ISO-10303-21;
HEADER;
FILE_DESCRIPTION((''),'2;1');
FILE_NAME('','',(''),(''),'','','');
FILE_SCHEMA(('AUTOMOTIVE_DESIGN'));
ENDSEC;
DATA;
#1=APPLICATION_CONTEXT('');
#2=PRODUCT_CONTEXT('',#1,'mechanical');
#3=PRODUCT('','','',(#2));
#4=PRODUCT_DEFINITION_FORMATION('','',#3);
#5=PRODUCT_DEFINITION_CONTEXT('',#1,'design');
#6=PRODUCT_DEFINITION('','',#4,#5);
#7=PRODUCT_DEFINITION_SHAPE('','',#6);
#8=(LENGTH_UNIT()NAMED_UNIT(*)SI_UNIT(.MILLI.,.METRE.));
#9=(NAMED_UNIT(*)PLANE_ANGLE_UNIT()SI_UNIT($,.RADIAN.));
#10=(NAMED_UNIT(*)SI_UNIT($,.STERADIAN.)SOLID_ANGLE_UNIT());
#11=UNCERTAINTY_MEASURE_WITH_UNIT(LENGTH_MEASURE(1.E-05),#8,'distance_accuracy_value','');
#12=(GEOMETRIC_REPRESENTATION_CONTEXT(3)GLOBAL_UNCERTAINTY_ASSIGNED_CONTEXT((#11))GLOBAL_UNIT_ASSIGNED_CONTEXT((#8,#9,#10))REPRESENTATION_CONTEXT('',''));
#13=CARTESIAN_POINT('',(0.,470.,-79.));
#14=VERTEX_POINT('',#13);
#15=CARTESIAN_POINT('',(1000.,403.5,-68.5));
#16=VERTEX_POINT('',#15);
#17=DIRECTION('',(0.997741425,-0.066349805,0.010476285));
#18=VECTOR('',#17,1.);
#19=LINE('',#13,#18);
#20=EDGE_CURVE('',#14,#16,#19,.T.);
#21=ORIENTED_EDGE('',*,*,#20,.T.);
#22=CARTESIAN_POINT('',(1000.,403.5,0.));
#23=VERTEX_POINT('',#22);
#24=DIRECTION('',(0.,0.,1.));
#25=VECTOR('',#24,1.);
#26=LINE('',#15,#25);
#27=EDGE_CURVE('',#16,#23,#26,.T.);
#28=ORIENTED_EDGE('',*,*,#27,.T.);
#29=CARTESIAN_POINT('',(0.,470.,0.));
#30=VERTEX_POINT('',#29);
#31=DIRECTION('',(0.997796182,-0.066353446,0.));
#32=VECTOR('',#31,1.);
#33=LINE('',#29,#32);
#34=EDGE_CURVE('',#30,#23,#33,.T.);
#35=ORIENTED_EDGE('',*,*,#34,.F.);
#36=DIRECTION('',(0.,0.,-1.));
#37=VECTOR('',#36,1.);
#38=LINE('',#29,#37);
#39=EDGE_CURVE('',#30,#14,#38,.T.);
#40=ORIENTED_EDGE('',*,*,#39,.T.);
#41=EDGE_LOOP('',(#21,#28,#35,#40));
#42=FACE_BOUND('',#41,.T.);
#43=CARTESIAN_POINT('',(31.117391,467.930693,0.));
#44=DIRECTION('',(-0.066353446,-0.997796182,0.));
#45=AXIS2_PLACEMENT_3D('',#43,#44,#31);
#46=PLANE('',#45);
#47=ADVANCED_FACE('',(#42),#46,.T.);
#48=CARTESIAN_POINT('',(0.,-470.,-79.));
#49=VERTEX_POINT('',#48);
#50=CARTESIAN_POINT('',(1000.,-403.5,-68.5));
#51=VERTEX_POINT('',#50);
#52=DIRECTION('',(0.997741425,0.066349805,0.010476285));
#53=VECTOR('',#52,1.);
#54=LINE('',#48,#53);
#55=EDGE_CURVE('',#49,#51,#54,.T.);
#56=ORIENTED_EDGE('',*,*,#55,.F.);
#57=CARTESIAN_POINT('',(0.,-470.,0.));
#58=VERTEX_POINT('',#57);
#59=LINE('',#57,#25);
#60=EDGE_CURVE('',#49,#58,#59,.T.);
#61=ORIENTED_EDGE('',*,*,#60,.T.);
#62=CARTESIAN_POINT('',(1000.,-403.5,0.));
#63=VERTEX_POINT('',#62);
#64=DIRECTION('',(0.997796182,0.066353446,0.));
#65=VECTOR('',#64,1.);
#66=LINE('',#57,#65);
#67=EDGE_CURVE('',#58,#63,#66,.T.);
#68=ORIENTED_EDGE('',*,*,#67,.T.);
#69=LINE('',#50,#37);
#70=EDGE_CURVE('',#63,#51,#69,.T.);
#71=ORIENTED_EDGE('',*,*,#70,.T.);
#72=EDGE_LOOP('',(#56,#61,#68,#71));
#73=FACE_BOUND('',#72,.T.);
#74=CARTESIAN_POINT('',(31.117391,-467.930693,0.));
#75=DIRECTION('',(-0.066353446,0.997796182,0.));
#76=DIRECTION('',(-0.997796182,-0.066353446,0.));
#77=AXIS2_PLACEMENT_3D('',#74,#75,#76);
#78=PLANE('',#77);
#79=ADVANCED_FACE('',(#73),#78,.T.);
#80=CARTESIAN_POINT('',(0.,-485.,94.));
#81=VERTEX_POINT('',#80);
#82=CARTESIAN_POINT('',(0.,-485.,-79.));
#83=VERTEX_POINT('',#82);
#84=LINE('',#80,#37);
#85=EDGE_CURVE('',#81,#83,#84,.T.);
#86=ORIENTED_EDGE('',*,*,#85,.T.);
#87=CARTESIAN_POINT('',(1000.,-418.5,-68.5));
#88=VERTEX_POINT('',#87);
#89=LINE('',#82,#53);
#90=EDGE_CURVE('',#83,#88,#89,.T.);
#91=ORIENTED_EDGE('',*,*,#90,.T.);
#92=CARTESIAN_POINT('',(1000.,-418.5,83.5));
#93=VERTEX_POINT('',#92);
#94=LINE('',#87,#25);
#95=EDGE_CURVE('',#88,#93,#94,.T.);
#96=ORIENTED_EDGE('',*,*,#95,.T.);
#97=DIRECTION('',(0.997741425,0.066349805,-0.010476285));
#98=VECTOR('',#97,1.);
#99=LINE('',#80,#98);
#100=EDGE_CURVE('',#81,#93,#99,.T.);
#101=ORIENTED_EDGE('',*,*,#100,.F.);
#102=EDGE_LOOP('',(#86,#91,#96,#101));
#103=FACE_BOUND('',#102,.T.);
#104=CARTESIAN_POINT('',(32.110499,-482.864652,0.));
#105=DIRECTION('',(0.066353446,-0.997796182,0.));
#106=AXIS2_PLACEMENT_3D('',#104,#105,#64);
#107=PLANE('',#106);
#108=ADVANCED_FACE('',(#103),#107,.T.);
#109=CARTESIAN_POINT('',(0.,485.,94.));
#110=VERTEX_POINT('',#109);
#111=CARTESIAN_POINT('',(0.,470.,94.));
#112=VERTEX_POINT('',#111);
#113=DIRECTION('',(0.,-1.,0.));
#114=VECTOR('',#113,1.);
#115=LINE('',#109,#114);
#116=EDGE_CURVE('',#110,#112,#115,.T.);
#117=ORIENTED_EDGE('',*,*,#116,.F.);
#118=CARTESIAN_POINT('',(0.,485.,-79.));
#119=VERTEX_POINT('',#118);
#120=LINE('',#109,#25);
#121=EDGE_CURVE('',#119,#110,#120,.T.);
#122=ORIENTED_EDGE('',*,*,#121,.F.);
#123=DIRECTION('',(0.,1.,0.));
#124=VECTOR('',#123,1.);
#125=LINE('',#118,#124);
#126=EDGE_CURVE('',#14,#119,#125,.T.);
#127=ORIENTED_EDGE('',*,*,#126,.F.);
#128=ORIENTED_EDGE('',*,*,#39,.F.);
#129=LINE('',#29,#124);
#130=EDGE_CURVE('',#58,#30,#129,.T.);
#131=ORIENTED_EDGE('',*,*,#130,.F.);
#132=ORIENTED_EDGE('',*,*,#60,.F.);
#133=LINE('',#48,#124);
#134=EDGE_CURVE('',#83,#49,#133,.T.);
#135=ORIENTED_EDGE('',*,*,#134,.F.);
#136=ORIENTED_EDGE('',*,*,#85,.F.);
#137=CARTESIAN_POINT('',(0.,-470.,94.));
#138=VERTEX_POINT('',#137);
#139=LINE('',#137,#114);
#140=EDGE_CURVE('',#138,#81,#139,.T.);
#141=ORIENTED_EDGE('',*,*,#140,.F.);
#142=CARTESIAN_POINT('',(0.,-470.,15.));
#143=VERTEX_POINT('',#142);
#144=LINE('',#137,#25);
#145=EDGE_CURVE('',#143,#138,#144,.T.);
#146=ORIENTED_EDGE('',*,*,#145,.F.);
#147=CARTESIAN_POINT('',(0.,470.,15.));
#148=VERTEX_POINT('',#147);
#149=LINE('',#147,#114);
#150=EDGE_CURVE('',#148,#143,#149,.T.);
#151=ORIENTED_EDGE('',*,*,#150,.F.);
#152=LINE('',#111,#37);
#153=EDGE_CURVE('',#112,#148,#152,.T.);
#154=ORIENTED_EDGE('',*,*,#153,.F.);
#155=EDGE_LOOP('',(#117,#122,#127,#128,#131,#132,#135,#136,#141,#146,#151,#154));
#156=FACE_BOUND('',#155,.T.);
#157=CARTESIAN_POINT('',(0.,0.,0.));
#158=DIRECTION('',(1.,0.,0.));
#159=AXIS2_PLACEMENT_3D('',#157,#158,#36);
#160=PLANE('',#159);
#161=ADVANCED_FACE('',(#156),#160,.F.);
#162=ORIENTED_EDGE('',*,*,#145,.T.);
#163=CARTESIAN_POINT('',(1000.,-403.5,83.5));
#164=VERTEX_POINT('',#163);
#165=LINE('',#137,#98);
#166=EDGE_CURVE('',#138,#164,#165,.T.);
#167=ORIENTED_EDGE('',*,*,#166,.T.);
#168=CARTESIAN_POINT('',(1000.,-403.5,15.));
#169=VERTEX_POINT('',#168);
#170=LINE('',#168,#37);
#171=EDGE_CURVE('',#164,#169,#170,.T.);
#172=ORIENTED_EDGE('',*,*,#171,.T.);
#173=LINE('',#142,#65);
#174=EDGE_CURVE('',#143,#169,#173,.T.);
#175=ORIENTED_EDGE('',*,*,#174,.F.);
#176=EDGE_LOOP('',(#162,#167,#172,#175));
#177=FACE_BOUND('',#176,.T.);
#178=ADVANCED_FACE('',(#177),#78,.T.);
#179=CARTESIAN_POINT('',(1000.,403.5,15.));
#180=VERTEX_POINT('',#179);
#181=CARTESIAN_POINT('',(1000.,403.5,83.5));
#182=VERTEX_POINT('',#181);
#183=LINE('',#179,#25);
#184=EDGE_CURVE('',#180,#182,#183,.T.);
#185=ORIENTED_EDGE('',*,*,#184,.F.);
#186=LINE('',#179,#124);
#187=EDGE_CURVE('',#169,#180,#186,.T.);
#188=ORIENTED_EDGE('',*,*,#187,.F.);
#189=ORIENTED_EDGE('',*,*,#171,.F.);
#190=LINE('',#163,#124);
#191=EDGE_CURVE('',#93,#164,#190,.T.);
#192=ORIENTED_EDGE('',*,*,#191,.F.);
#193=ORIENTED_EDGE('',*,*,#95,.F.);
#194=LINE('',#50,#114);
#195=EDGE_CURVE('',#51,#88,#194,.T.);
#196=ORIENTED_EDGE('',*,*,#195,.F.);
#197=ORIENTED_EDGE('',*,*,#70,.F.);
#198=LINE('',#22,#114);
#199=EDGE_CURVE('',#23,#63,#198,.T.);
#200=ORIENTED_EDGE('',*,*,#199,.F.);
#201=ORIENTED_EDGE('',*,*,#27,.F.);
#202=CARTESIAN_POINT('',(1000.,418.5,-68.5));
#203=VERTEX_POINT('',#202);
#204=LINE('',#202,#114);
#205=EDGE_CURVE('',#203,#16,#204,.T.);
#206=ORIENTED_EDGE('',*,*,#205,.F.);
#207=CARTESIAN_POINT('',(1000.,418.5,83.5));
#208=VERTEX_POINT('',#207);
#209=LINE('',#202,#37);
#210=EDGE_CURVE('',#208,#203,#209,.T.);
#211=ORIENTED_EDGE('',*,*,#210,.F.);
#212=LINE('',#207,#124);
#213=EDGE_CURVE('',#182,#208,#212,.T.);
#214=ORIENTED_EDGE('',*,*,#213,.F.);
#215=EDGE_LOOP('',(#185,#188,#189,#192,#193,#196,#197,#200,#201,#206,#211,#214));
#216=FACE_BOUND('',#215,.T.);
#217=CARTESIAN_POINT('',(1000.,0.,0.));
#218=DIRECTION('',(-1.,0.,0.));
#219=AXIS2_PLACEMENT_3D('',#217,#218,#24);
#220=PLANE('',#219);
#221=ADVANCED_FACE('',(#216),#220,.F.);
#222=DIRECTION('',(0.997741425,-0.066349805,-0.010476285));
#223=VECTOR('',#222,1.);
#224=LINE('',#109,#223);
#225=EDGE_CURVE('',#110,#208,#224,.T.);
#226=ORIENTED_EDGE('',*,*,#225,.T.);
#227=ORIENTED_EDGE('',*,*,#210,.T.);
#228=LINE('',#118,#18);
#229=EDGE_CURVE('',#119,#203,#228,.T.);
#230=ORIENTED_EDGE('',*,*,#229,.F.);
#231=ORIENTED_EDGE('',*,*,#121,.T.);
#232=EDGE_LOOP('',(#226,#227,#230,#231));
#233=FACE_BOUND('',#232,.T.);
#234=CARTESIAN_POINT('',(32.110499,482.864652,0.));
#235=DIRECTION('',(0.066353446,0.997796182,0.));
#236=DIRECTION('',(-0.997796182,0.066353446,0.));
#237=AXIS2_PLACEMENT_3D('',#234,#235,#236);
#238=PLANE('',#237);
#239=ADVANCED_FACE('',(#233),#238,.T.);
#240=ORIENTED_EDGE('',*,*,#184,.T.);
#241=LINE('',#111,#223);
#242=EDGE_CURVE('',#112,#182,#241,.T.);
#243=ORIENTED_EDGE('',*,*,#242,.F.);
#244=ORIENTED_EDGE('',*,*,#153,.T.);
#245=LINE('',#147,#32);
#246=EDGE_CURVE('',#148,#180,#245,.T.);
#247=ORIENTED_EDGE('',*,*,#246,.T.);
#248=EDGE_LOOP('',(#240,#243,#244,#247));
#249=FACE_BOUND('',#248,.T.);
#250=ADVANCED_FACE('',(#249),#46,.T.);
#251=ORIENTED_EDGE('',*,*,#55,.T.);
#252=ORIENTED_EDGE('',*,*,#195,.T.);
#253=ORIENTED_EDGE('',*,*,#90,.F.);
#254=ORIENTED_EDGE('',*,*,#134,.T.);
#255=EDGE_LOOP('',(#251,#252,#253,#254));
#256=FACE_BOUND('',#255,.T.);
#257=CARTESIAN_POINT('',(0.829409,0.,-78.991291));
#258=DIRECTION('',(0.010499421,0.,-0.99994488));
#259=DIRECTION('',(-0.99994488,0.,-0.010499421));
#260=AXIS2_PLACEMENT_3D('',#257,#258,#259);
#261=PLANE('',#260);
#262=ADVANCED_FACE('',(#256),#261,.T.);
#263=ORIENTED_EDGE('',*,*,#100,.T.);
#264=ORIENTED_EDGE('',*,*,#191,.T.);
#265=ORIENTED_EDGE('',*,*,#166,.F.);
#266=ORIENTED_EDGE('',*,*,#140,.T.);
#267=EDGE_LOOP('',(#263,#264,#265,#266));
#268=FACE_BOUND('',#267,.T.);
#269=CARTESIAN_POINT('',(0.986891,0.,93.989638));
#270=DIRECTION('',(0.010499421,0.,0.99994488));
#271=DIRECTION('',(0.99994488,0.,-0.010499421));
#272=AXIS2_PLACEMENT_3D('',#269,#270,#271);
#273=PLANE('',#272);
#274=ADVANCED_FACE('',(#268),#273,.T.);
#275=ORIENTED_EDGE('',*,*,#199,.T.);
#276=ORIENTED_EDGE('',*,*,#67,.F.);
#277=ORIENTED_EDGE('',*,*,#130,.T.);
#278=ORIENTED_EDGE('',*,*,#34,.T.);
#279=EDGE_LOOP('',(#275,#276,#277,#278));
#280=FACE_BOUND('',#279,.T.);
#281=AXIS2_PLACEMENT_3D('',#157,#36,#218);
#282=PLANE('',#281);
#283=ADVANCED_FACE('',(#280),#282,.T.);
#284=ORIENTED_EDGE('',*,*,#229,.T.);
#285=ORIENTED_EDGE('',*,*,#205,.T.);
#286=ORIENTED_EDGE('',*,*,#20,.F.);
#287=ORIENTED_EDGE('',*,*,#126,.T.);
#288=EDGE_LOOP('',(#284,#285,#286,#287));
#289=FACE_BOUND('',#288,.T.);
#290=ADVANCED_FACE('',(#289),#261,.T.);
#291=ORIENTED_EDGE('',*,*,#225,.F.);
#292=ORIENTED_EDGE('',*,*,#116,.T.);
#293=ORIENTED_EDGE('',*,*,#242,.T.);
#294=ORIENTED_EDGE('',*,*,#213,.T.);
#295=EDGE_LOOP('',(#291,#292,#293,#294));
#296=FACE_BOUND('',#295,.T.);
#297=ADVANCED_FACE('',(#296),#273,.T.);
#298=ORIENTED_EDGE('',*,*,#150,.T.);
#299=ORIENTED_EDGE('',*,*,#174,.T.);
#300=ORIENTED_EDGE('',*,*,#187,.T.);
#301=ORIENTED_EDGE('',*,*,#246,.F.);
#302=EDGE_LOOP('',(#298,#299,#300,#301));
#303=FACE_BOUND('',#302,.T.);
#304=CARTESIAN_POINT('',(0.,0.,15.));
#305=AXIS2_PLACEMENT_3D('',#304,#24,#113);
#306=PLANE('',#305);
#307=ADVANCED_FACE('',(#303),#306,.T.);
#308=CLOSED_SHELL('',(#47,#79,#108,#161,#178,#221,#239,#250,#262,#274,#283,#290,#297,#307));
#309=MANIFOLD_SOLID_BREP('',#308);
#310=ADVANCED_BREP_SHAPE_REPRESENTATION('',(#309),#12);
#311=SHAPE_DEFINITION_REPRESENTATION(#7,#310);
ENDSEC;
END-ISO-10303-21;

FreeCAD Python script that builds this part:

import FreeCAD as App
import Part
import Sketcher

V = App.Vector
Q = App.Units.Quantity


def add_polygon(sketch, points):
    """Adds a closed chain of lines whose ends are joined by coincident constraints."""
    first, n = sketch.GeometryCount, len(points)
    for a, b in zip(points, points[1:] + points[:1]):
        sketch.addGeometry(Part.LineSegment(App.Vector(*a, 0), App.Vector(*b, 0)), False)
    for i in range(n):
        sketch.addConstraint(Sketcher.Constraint("Coincident", first + i, 2, first + (i + 1) % n, 1))

doc = App.newDocument("Part")
body = doc.addObject("PartDesign::Body", "Body")

# Sketch on YZ plane
sketch1 = body.newObject("Sketcher::SketchObject", "Sketch")
sketch1.AttachmentSupport = (doc.getObject("YZ_Plane"), [""])
sketch1.MapMode = "FlatFace"
add_polygon(sketch1, [(485, -79), (485, 94), (470, 94), (470, 15), (-470, 15), (-470, 94), (-485, 94), (-485, -79), (-470, -79), (-470, 0), (470, 0), (470, -79)])  # lines 0-11
sketch1.addConstraint(Sketcher.Constraint("Vertical", 0))
sketch1.addConstraint(Sketcher.Constraint("Horizontal", 1))
sketch1.addConstraint(Sketcher.Constraint("Vertical", 2))
sketch1.addConstraint(Sketcher.Constraint("Horizontal", 3))
sketch1.addConstraint(Sketcher.Constraint("Vertical", 4))
sketch1.addConstraint(Sketcher.Constraint("Horizontal", 5))
sketch1.addConstraint(Sketcher.Constraint("Vertical", 6))
sketch1.addConstraint(Sketcher.Constraint("Horizontal", 7))
sketch1.addConstraint(Sketcher.Constraint("Vertical", 8))
sketch1.addConstraint(Sketcher.Constraint("Horizontal", 9))
sketch1.addConstraint(Sketcher.Constraint("Vertical", 10))
sketch1.addConstraint(Sketcher.Constraint("Horizontal", 11))
sketch1.addConstraint(Sketcher.Constraint("Symmetric", 8, 2, 9, 2, -1, 1))
sketch1.addConstraint(Sketcher.Constraint("Symmetric", 1, 2, 4, 2, -2))
sketch1.addConstraint(Sketcher.Constraint("Symmetric", 6, 2, 11, 2, -2))
sketch1.addConstraint(Sketcher.Constraint("Vertical", 4, 2, 7, 2))
sketch1.addConstraint(Sketcher.Constraint("Equal", 4, 8))
sketch1.addConstraint(Sketcher.Constraint("DistanceX", 1, 2, 1, 1, Q("15 mm")))
sketch1.addConstraint(Sketcher.Constraint("DistanceX", 3, 2, 3, 1, Q("940 mm")))
sketch1.addConstraint(Sketcher.Constraint("DistanceY", 0, 1, 0, 2, Q("173 mm")))
sketch1.addConstraint(Sketcher.Constraint("DistanceY", 2, 2, 2, 1, Q("79 mm")))

# Sketch on YZ plane
sketch2 = body.newObject("Sketcher::SketchObject", "Sketch001")
sketch2.AttachmentSupport = (doc.getObject("YZ_Plane"), [""])
sketch2.MapMode = "FlatFace"
sketch2.AttachmentOffset = App.Placement(V(0, 0, 1000), App.Rotation())
add_polygon(sketch2, [(418, 84), (418, -68), (404, -68), (404, 0), (-404, 0), (-404, -68), (-418, -68), (-418, 84), (-404, 84), (-404, 15), (404, 15), (404, 84)])  # lines 0-11
sketch2.addConstraint(Sketcher.Constraint("Vertical", 0))
sketch2.addConstraint(Sketcher.Constraint("Horizontal", 1))
sketch2.addConstraint(Sketcher.Constraint("Vertical", 2))
sketch2.addConstraint(Sketcher.Constraint("Horizontal", 3))
sketch2.addConstraint(Sketcher.Constraint("Vertical", 4))
sketch2.addConstraint(Sketcher.Constraint("Horizontal", 5))
sketch2.addConstraint(Sketcher.Constraint("Vertical", 6))
sketch2.addConstraint(Sketcher.Constraint("Horizontal", 7))
sketch2.addConstraint(Sketcher.Constraint("Vertical", 8))
sketch2.addConstraint(Sketcher.Constraint("Horizontal", 9))
sketch2.addConstraint(Sketcher.Constraint("Vertical", 10))
sketch2.addConstraint(Sketcher.Constraint("Horizontal", 11))
sketch2.addConstraint(Sketcher.Constraint("Symmetric", 2, 2, 3, 2, -1, 1))
sketch2.addConstraint(Sketcher.Constraint("Symmetric", 0, 2, 5, 2, -2))
sketch2.addConstraint(Sketcher.Constraint("Symmetric", 7, 2, 10, 2, -2))
sketch2.addConstraint(Sketcher.Constraint("Vertical", 4, 2, 7, 2))
sketch2.addConstraint(Sketcher.Constraint("Equal", 4, 8))
sketch2.addConstraint(Sketcher.Constraint("DistanceX", 1, 2, 1, 1, Q("15 mm")))
sketch2.addConstraint(Sketcher.Constraint("DistanceX", 3, 2, 3, 1, Q("807 mm")))
sketch2.addConstraint(Sketcher.Constraint("DistanceY", 0, 2, 0, 1, Q("152 mm")))
sketch2.addConstraint(Sketcher.Constraint("DistanceY", 2, 1, 2, 2, Q("68.5 mm")))

additiveloft = body.newObject("PartDesign::AdditiveLoft", "AdditiveLoft")
additiveloft.Profile = sketch1
additiveloft.Sections = [sketch2]

doc.recompute()
